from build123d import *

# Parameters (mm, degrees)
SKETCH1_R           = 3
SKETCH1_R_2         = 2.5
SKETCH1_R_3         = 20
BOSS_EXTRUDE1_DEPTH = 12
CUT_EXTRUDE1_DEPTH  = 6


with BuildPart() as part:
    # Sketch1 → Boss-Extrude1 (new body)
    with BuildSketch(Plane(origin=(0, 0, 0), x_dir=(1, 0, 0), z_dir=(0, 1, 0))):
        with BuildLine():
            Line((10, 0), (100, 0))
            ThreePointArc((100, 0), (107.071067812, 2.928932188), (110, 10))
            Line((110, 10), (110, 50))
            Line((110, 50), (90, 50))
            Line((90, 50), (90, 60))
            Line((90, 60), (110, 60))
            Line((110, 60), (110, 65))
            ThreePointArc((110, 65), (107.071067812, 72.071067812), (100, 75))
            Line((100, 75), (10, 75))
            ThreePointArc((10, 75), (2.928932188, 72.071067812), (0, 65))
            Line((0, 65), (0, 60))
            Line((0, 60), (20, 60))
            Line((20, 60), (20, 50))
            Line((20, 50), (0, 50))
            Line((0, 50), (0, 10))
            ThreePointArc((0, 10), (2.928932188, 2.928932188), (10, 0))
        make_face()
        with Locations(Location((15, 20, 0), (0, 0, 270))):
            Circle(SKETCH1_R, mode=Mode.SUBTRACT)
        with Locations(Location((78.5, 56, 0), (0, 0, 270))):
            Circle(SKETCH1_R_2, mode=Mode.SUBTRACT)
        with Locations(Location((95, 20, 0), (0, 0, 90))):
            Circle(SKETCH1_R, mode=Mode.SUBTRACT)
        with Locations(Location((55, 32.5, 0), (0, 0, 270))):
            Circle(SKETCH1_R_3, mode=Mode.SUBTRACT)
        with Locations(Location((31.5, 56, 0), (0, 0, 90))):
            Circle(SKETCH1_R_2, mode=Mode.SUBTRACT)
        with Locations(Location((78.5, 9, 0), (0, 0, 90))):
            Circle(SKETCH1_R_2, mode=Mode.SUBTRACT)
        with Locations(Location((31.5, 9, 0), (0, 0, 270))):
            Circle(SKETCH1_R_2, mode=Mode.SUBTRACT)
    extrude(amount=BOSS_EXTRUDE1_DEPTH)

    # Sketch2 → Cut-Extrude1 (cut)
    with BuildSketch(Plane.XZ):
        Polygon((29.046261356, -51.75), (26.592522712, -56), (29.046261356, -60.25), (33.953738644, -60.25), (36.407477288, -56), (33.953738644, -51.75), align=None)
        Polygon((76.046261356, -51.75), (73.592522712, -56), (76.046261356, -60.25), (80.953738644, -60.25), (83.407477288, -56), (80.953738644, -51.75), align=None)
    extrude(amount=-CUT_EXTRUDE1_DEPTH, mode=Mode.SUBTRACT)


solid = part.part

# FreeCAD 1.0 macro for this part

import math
import FreeCAD as App
import Part
import Sketcher
from FreeCAD import Vector
Q = App.Units.Quantity


def add_polygon(sketch, points):
    """Adds a closed chain of lines whose ends are joined by coincident constraints."""
    first, n = sketch.GeometryCount, len(points)
    for a, b in zip(points, points[1:] + points[:1]):
        sketch.addGeometry(Part.LineSegment(App.Vector(*a, 0), App.Vector(*b, 0)), False)
    for i in range(n):
        sketch.addConstraint(Sketcher.Constraint("Coincident", first + i, 2, first + (i + 1) % n, 1))

doc = App.newDocument("Part")
body = doc.addObject("PartDesign::Body", "Body")

# Sketch on XZ plane
sketch1 = doc.addObject("Sketcher::SketchObject", "Sketch")
body.addObject(sketch1)
sketch1.AttachmentSupport = (doc.XZ_Plane, [""])
sketch1.MapMode = "FlatFace"
sketch1.addGeometry(Part.LineSegment(Vector(10, 0, 0), Vector(100, 0, 0)), False)
sketch1.addGeometry(Part.ArcOfCircle(Part.Circle(Vector(100, -10, 0), Vector(0, 0, 1), 10), math.radians(0), math.radians(90)), False)
sketch1.addGeometry(Part.LineSegment(Vector(110, -10, 0), Vector(110, -50, 0)), False)
sketch1.addGeometry(Part.LineSegment(Vector(110, -50, 0), Vector(90, -50, 0)), False)
sketch1.addGeometry(Part.LineSegment(Vector(90, -50, 0), Vector(90, -60, 0)), False)
sketch1.addGeometry(Part.LineSegment(Vector(90, -60, 0), Vector(110, -60, 0)), False)
sketch1.addGeometry(Part.LineSegment(Vector(110, -60, 0), Vector(110, -65, 0)), False)
sketch1.addGeometry(Part.ArcOfCircle(Part.Circle(Vector(100, -65, 0), Vector(0, 0, 1), 10), math.radians(-90), math.radians(0)), False)
sketch1.addGeometry(Part.LineSegment(Vector(100, -75, 0), Vector(10, -75, 0)), False)
sketch1.addGeometry(Part.ArcOfCircle(Part.Circle(Vector(10, -65, 0), Vector(0, 0, 1), 10), math.radians(180), math.radians(270)), False)
sketch1.addGeometry(Part.LineSegment(Vector(0, -65, 0), Vector(0, -60, 0)), False)
sketch1.addGeometry(Part.LineSegment(Vector(0, -60, 0), Vector(20, -60, 0)), False)
sketch1.addGeometry(Part.LineSegment(Vector(20, -60, 0), Vector(20, -50, 0)), False)
sketch1.addGeometry(Part.LineSegment(Vector(20, -50, 0), Vector(0, -50, 0)), False)
sketch1.addGeometry(Part.LineSegment(Vector(0, -50, 0), Vector(0, -10, 0)), False)
sketch1.addGeometry(Part.ArcOfCircle(Part.Circle(Vector(10, -10, 0), Vector(0, 0, 1), 10), math.radians(90), math.radians(180)), False)
sketch1.addGeometry(Part.Circle(Vector(31.5, -9, 0), Vector(0, 0, 1), 2.5), False)
sketch1.addGeometry(Part.Circle(Vector(15, -20, 0), Vector(0, 0, 1), 3), False)
sketch1.addGeometry(Part.Circle(Vector(78.5, -9, 0), Vector(0, 0, 1), 2.5), False)
sketch1.addGeometry(Part.Circle(Vector(95, -20, 0), Vector(0, 0, 1), 3), False)
sketch1.addGeometry(Part.Circle(Vector(31.5, -56, 0), Vector(0, 0, 1), 2.5), False)
sketch1.addGeometry(Part.Circle(Vector(55, -32.5, 0), Vector(0, 0, 1), 20), False)
sketch1.addGeometry(Part.Circle(Vector(78.5, -56, 0), Vector(0, 0, 1), 2.5), False)
sketch1.addConstraint(Sketcher.Constraint("Tangent", 0, 2, 1, 2))
sketch1.addConstraint(Sketcher.Constraint("Tangent", 1, 1, 2, 1))
sketch1.addConstraint(Sketcher.Constraint("Coincident", 2, 2, 3, 1))
sketch1.addConstraint(Sketcher.Constraint("Coincident", 3, 2, 4, 1))
sketch1.addConstraint(Sketcher.Constraint("Coincident", 4, 2, 5, 1))
sketch1.addConstraint(Sketcher.Constraint("Coincident", 5, 2, 6, 1))
sketch1.addConstraint(Sketcher.Constraint("Tangent", 6, 2, 7, 2))
sketch1.addConstraint(Sketcher.Constraint("Tangent", 7, 1, 8, 1))
sketch1.addConstraint(Sketcher.Constraint("Tangent", 8, 2, 9, 2))
sketch1.addConstraint(Sketcher.Constraint("Tangent", 9, 1, 10, 1))
sketch1.addConstraint(Sketcher.Constraint("Coincident", 10, 2, 11, 1))
sketch1.addConstraint(Sketcher.Constraint("Coincident", 11, 2, 12, 1))
sketch1.addConstraint(Sketcher.Constraint("Coincident", 12, 2, 13, 1))
sketch1.addConstraint(Sketcher.Constraint("Coincident", 13, 2, 14, 1))
sketch1.addConstraint(Sketcher.Constraint("Tangent", 14, 2, 15, 2))
sketch1.addConstraint(Sketcher.Constraint("Tangent", 15, 1, 0, 1))
sketch1.addConstraint(Sketcher.Constraint("Horizontal", 0))
sketch1.addConstraint(Sketcher.Constraint("Vertical", 2))
sketch1.addConstraint(Sketcher.Constraint("Horizontal", 3))
sketch1.addConstraint(Sketcher.Constraint("Vertical", 4))
sketch1.addConstraint(Sketcher.Constraint("Horizontal", 5))
sketch1.addConstraint(Sketcher.Constraint("Vertical", 6))
sketch1.addConstraint(Sketcher.Constraint("Horizontal", 8))
sketch1.addConstraint(Sketcher.Constraint("Vertical", 10))
sketch1.addConstraint(Sketcher.Constraint("Horizontal", 11))
sketch1.addConstraint(Sketcher.Constraint("Vertical", 12))
sketch1.addConstraint(Sketcher.Constraint("Horizontal", 13))
sketch1.addConstraint(Sketcher.Constraint("Vertical", 14))
sketch1.addConstraint(Sketcher.Constraint("Equal", 1, 7))
sketch1.addConstraint(Sketcher.Constraint("Equal", 7, 9))
sketch1.addConstraint(Sketcher.Constraint("Equal", 9, 15))
sketch1.addConstraint(Sketcher.Constraint("Equal", 16, 18))
sketch1.addConstraint(Sketcher.Constraint("Equal", 17, 19))
sketch1.addConstraint(Sketcher.Constraint("Equal", 18, 20))
sketch1.addConstraint(Sketcher.Constraint("Equal", 20, 22))
sketch1.addConstraint(Sketcher.Constraint("PointOnObject", 0, 2, -1))
sketch1.addConstraint(Sketcher.Constraint("PointOnObject", 9, 1, -2))
sketch1.addConstraint(Sketcher.Constraint("PointOnObject", 13, 2, -2))
sketch1.addConstraint(Sketcher.Constraint("Horizontal", 16, 3, 18, 3))
sketch1.addConstraint(Sketcher.Constraint("Horizontal", 17, 3, 19, 3))
sketch1.addConstraint(Sketcher.Constraint("Horizontal", 20, 3, 22, 3))
sketch1.addConstraint(Sketcher.Constraint("Horizontal", 5, 2, 10, 2))
sketch1.addConstraint(Sketcher.Constraint("Horizontal", 3, 2, 12, 2))
sketch1.addConstraint(Sketcher.Constraint("Vertical", 1, 3, 7, 3))
sketch1.addConstraint(Sketcher.Constraint("Vertical", 16, 3, 20, 3))
sketch1.addConstraint(Sketcher.Constraint("Vertical", 18, 3, 22, 3))
sketch1.addConstraint(Sketcher.Constraint("Equal", 5, 11))
sketch1.addConstraint(Sketcher.Constraint("Diameter", 16, 5.0))
sketch1.addConstraint(Sketcher.Constraint("Diameter", 17, 6.0))
sketch1.addConstraint(Sketcher.Constraint("Diameter", 21, 40.0))
sketch1.addConstraint(Sketcher.Constraint("Radius", 1, 10.0))
sketch1.addConstraint(Sketcher.Constraint("DistanceX", 0, 1, 0, 2, 90.0))
sketch1.addConstraint(Sketcher.Constraint("DistanceX", 3, 2, 3, 1, 20.0))
sketch1.addConstraint(Sketcher.Constraint("DistanceY", 2, 2, 2, 1, 40.0))
sketch1.addConstraint(Sketcher.Constraint("DistanceY", 4, 2, 4, 1, 10.0))
sketch1.addConstraint(Sketcher.Constraint("DistanceY", 6, 2, 6, 1, 5.0))
sketch1.addConstraint(Sketcher.Constraint("DistanceY", 16, 3, -1, 1, 9.0))
sketch1.addConstraint(Sketcher.Constraint("DistanceX", -1, 1, 17, 3, 15.0))
sketch1.addConstraint(Sketcher.Constraint("DistanceY", 17, 3, -1, 1, 20.0))
sketch1.addConstraint(Sketcher.Constraint("DistanceX", -1, 1, 19, 3, 95.0))
sketch1.addConstraint(Sketcher.Constraint("DistanceY", 20, 3, -1, 1, 56.0))
sketch1.addConstraint(Sketcher.Constraint("DistanceX", -1, 1, 21, 3, 55.0))
sketch1.addConstraint(Sketcher.Constraint("DistanceX", 16, 3, 18, 3, 47.0))
sketch1.addConstraint(Sketcher.Constraint("DistanceX", -1, 1, 16, 3, 31.5))
sketch1.addConstraint(Sketcher.Constraint("DistanceY", 21, 3, -1, 1, 32.5))
pad1 = doc.addObject("PartDesign::Pad", "Pad")
body.addObject(pad1)
pad1.Profile = sketch1
pad1.Length = 12
pad1.Reversed = True

# Sketch on XZ plane
sketch2 = doc.addObject("Sketcher::SketchObject", "Sketch001")
body.addObject(sketch2)
sketch2.AttachmentSupport = (doc.XZ_Plane, [""])
sketch2.MapMode = "FlatFace"
add_polygon(sketch2, [(29, -51.8), (26.6, -56), (29, -60.2), (34, -60.2), (36.4, -56), (34, -51.8)])  # lines 0-5
add_polygon(sketch2, [(76, -51.8), (73.6, -56), (76, -60.2), (81, -60.2), (83.4, -56), (81, -51.8)])  # lines 6-11
sketch2.addConstraint(Sketcher.Constraint("Horizontal", 2))
sketch2.addConstraint(Sketcher.Constraint("Horizontal", 5))
sketch2.addConstraint(Sketcher.Constraint("Horizontal", 8))
sketch2.addConstraint(Sketcher.Constraint("Horizontal", 11))
sketch2.addConstraint(Sketcher.Constraint("Parallel", 0, 3))
sketch2.addConstraint(Sketcher.Constraint("Parallel", 1, 4))
sketch2.addConstraint(Sketcher.Constraint("Parallel", 3, 6))
sketch2.addConstraint(Sketcher.Constraint("Parallel", 4, 7))
sketch2.addConstraint(Sketcher.Constraint("Parallel", 6, 9))
sketch2.addConstraint(Sketcher.Constraint("Parallel", 7, 10))
sketch2.addConstraint(Sketcher.Constraint("Horizontal", 0, 2, 3, 2))
sketch2.addConstraint(Sketcher.Constraint("Horizontal", 3, 2, 6, 2))
sketch2.addConstraint(Sketcher.Constraint("Horizontal", 2, 2, 7, 2))
sketch2.addConstraint(Sketcher.Constraint("Horizontal", 6, 2, 9, 2))
sketch2.addConstraint(Sketcher.Constraint("Horizontal", 5, 2, 10, 2))
sketch2.addConstraint(Sketcher.Constraint("Vertical", 2, 2, 4, 2))
sketch2.addConstraint(Sketcher.Constraint("Vertical", 1, 2, 5, 2))
sketch2.addConstraint(Sketcher.Constraint("Equal", 5, 8))
sketch2.addConstraint(Sketcher.Constraint("Angle", 0, Q("-120 deg")))
sketch2.addConstraint(Sketcher.Constraint("DistanceY", 0, 2, -1, 1, 56.0))
sketch2.addConstraint(Sketcher.Constraint("DistanceX", 1, 2, 7, 2, 47.0))
sketch2.addConstraint(Sketcher.Constraint("DistanceY", 2, 2, 4, 2, 8.5))
sketch2.addConstraint(Sketcher.Constraint("DistanceX", 2, 1, 2, 2, 4.907477))
sketch2.addConstraint(Sketcher.Constraint("DistanceX", -1, 1, 1, 2, 29.046261))
pocket1 = doc.addObject("PartDesign::Pocket", "Pocket")
body.addObject(pocket1)
pocket1.Profile = sketch2
pocket1.Length = 6

doc.recompute()
